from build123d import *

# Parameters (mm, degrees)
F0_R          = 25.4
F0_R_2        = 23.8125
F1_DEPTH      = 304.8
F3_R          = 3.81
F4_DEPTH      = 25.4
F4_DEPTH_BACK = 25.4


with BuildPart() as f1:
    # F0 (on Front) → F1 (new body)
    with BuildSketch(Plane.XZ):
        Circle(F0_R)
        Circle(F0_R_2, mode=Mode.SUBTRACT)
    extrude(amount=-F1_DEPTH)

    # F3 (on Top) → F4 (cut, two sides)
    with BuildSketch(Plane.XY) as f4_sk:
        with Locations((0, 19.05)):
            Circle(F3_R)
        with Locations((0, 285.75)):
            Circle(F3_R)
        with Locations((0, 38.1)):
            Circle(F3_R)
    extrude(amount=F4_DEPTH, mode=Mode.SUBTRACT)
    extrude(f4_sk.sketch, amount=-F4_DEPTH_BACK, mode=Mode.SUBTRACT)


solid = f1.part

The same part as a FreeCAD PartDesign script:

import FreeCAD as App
import Part
import Sketcher

V = App.Vector
Q = App.Units.Quantity

doc = App.newDocument("Part")
body = doc.addObject("PartDesign::Body", "Body")

sketch1 = doc.addObject("Sketcher::SketchObject", "Sketch")
body.addObject(sketch1)
sketch1.AttachmentSupport = (doc.XZ_Plane, [""])
sketch1.MapMode = "FlatFace"
sketch1.addGeometry(Part.Circle(V(0, 0, 0), V(0, 0, 1), 25), False)
sketch1.addGeometry(Part.Circle(V(0, 0, 0), V(0, 0, 1), 24), False)
sketch1.addConstraint(Sketcher.Constraint("Coincident", 0, 3, -1, 1))
sketch1.addConstraint(Sketcher.Constraint("Coincident", 1, 3, -1, 1))
sketch1.addConstraint(Sketcher.Constraint("Diameter", 0, Q("2 in")))
sketch1.addConstraint(Sketcher.Constraint("Diameter", 1, Q("1.875 in")))
pad1 = doc.addObject("PartDesign::Pad", "Pad")
body.addObject(pad1)
pad1.Profile = sketch1
pad1.Length = Q("12 in")
pad1.Reversed = True

sketch2 = doc.addObject("Sketcher::SketchObject", "Sketch001")
body.addObject(sketch2)
sketch2.AttachmentSupport = (doc.XY_Plane, [""])
sketch2.MapMode = "FlatFace"
sketch2.addGeometry(Part.Circle(V(0, 19.1, 0), V(0, 0, 1), 3.8), False)
sketch2.addGeometry(Part.Circle(V(0, 285.8, 0), V(0, 0, 1), 3.8), False)
sketch2.addGeometry(Part.Circle(V(0, 38.1, 0), V(0, 0, 1), 3.8), False)
sketch2.addConstraint(Sketcher.Constraint("Equal", 0, 1))
sketch2.addConstraint(Sketcher.Constraint("Equal", 1, 2))
sketch2.addConstraint(Sketcher.Constraint("PointOnObject", 0, 3, -2))
sketch2.addConstraint(Sketcher.Constraint("PointOnObject", 1, 3, -2))
sketch2.addConstraint(Sketcher.Constraint("PointOnObject", 2, 3, -2))
sketch2.addConstraint(Sketcher.Constraint("Diameter", 0, Q("0.3 in")))
sketch2.addConstraint(Sketcher.Constraint("DistanceY", -1, 1, 2, 3, Q("1.5 in")))
sketch2.addConstraint(Sketcher.Constraint("DistanceY", 0, 3, 1, 3, Q("10.5 in")))
sketch2.addConstraint(Sketcher.Constraint("DistanceY", -1, 1, 0, 3, Q("0.75 in")))
pocket1 = doc.addObject("PartDesign::Pocket", "Pocket")
body.addObject(pocket1)
pocket1.Profile = sketch2
pocket1.Type = "ThroughAll"
pocket1.Midplane = True

doc.recompute()
